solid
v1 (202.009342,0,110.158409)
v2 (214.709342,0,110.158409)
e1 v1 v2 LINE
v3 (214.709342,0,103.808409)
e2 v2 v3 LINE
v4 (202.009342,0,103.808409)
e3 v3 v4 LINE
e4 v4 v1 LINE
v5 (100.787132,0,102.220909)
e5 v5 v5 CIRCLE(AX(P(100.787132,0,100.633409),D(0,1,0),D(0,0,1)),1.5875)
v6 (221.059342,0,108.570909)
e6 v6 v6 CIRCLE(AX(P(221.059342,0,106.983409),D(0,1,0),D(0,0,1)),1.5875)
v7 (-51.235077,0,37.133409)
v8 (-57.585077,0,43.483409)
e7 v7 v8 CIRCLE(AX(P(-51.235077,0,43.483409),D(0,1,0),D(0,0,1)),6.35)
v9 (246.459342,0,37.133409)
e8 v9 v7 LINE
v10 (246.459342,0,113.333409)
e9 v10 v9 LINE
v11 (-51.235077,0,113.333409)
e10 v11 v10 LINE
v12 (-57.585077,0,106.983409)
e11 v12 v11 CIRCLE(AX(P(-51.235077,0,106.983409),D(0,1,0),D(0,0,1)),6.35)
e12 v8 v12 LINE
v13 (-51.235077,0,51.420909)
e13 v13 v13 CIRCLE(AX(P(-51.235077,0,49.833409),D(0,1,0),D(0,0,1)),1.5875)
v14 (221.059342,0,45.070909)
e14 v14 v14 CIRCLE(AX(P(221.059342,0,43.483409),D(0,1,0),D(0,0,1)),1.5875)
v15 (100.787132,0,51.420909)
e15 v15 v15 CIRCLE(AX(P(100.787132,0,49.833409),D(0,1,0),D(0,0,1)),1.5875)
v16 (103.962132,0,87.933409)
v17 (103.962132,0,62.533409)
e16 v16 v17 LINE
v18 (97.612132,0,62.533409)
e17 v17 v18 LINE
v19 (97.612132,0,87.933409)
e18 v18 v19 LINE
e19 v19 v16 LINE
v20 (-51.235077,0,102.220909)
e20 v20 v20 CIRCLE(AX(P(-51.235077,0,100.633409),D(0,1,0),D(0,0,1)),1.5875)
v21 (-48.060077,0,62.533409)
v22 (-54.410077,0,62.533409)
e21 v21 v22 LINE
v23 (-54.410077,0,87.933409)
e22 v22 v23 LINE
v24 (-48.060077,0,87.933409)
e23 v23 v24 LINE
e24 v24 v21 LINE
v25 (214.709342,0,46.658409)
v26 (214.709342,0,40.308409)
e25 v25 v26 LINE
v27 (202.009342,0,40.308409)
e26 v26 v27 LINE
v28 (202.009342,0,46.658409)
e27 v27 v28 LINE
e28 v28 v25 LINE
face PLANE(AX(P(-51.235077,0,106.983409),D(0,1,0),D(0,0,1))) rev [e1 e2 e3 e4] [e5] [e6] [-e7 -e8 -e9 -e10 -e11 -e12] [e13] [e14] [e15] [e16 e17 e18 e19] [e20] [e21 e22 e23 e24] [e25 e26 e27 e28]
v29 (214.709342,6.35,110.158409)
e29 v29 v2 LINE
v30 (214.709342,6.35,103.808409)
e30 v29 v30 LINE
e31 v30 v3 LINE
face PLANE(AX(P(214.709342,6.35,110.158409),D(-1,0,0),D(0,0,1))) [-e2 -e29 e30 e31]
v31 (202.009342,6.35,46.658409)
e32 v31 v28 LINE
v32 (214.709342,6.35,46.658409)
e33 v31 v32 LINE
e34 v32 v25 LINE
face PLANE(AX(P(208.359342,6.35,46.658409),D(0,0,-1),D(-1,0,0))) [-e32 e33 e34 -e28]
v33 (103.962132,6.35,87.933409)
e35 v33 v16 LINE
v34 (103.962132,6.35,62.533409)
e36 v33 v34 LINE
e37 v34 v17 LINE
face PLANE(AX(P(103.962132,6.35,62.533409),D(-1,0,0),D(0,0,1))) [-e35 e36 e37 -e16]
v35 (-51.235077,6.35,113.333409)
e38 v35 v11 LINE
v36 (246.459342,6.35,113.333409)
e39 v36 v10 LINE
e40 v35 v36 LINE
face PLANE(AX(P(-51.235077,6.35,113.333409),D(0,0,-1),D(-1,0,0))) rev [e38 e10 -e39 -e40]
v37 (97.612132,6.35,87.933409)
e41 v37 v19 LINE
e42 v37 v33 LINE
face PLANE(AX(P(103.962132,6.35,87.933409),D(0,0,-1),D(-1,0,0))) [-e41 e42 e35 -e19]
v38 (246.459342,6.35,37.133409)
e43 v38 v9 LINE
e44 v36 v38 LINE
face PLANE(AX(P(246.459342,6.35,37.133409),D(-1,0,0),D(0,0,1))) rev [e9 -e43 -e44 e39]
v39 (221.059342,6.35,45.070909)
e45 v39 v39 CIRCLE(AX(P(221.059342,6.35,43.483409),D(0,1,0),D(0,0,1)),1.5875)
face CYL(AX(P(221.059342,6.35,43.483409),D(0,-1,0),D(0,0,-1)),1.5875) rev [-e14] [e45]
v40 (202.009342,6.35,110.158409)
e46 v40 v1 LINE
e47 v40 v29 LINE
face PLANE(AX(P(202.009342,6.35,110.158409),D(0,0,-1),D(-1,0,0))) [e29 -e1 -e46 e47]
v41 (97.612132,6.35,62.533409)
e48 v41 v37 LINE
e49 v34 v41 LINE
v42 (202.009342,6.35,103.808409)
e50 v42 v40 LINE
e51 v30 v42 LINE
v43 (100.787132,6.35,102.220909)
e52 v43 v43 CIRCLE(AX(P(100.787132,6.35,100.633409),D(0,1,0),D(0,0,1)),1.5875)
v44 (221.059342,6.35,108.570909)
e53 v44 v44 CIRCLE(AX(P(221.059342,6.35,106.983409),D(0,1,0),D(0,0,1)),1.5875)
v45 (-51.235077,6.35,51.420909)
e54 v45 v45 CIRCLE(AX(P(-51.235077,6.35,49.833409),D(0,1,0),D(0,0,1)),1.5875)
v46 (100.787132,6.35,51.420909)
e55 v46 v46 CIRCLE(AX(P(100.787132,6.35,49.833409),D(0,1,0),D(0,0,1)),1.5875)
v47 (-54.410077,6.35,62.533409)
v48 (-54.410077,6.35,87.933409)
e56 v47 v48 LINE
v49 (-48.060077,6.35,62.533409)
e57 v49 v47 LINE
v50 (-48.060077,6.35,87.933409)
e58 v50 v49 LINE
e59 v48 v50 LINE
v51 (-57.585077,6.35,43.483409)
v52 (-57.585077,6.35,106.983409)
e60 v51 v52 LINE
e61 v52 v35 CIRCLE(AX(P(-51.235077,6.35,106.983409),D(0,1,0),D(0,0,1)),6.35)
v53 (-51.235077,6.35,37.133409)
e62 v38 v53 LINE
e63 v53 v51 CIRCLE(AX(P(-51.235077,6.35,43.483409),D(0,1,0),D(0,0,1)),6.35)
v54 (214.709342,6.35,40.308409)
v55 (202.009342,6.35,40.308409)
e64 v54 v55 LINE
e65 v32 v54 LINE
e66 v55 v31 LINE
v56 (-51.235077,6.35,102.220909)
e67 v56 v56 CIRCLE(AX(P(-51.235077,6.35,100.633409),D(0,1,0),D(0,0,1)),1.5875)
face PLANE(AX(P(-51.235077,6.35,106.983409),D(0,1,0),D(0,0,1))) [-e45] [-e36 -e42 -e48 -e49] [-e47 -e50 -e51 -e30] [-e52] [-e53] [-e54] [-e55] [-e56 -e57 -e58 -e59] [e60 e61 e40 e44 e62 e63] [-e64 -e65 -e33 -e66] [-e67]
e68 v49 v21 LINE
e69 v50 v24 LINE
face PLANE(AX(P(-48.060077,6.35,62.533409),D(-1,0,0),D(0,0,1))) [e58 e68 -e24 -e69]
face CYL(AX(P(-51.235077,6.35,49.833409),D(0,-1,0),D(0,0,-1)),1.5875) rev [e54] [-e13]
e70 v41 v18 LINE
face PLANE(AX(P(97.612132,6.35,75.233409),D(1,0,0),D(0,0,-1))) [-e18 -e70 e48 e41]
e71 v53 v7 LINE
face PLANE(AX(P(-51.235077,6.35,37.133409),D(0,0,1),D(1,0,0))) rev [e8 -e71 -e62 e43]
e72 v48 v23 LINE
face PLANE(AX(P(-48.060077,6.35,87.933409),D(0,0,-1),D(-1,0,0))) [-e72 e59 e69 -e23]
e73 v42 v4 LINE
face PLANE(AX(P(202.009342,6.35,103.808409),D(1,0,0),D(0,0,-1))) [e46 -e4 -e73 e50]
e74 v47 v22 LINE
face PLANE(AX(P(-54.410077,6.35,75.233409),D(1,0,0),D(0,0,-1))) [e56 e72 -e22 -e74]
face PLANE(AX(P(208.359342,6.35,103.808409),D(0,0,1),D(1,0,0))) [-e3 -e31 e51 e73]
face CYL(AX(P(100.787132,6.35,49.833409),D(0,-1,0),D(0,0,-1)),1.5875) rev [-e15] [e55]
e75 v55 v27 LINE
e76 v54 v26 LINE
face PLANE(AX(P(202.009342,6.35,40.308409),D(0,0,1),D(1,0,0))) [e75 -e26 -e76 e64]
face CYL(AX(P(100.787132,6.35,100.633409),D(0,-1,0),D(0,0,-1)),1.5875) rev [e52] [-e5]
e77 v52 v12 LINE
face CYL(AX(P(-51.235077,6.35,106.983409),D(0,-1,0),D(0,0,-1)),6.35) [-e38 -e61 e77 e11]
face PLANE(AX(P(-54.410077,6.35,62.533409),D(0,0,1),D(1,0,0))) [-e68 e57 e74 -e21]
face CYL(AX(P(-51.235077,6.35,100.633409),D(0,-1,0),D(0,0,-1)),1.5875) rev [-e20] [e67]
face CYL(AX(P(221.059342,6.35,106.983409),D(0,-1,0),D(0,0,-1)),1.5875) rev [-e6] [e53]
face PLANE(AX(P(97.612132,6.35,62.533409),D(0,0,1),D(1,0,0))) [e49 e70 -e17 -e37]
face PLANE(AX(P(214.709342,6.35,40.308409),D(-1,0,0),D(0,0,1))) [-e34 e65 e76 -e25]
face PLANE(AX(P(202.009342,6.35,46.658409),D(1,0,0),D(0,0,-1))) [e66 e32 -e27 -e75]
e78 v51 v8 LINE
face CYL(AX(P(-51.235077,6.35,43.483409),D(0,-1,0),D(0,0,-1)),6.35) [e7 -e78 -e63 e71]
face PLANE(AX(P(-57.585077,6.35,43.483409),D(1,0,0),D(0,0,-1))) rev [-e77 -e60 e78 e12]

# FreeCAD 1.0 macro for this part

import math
import FreeCAD as App
import Part
import Sketcher
Q = App.Units.Quantity


def add_polygon(sketch, points):
    """Adds a closed chain of lines whose ends are joined by coincident constraints."""
    first, n = sketch.GeometryCount, len(points)
    for a, b in zip(points, points[1:] + points[:1]):
        sketch.addGeometry(Part.LineSegment(App.Vector(*a, 0), App.Vector(*b, 0)), False)
    for i in range(n):
        sketch.addConstraint(Sketcher.Constraint("Coincident", first + i, 2, first + (i + 1) % n, 1))

doc = App.newDocument("Part")
body = doc.addObject("PartDesign::Body", "Body")

sketch1 = doc.addObject("Sketcher::SketchObject", "Sketch")
body.addObject(sketch1)
sketch1.AttachmentSupport = (doc.XZ_Plane, [""])
sketch1.MapMode = "FlatFace"
sketch1.addGeometry(Part.LineSegment(App.Vector(-51.2, 113.3, 0), App.Vector(246.5, 113.3, 0)), False)
sketch1.addGeometry(Part.LineSegment(App.Vector(246.5, 113.3, 0), App.Vector(246.5, 37.1, 0)), False)
sketch1.addGeometry(Part.LineSegment(App.Vector(246.5, 37.1, 0), App.Vector(-51.2, 37.1, 0)), False)
sketch1.addGeometry(Part.ArcOfCircle(Part.Circle(App.Vector(-51.2, 43.5, 0), App.Vector(0, 0, 1), 6.3), math.radians(180), math.radians(270)), False)
sketch1.addGeometry(Part.LineSegment(App.Vector(-57.6, 43.5, 0), App.Vector(-57.6, 107, 0)), False)
sketch1.addGeometry(Part.ArcOfCircle(Part.Circle(App.Vector(-51.2, 107, 0), App.Vector(0, 0, 1), 6.3), math.radians(90), math.radians(180)), False)
sketch1.addGeometry(Part.Circle(App.Vector(-51.2, 100.6, 0), App.Vector(0, 0, 1), 1.6), False)
sketch1.addGeometry(Part.Circle(App.Vector(100.8, 100.6, 0), App.Vector(0, 0, 1), 1.6), False)
add_polygon(sketch1, [(202, 103.8), (214.7, 103.8), (214.7, 110.2), (202, 110.2)])
sketch1.addGeometry(Part.Circle(App.Vector(221.1, 107, 0), App.Vector(0, 0, 1), 1.6), False)
add_polygon(sketch1, [(-54.4, 87.9), (-54.4, 62.5), (-48.1, 62.5), (-48.1, 87.9)])
sketch1.addGeometry(Part.Circle(App.Vector(-51.2, 49.8, 0), App.Vector(0, 0, 1), 1.6), False)
add_polygon(sketch1, [(97.6, 87.9), (97.6, 62.5), (104, 62.5), (104, 87.9)])
sketch1.addGeometry(Part.Circle(App.Vector(100.8, 49.8, 0), App.Vector(0, 0, 1), 1.6), False)
add_polygon(sketch1, [(214.7, 46.7), (202, 46.7), (202, 40.3), (214.7, 40.3)])
sketch1.addGeometry(Part.Circle(App.Vector(221.1, 43.5, 0), App.Vector(0, 0, 1), 1.6), False)
sketch1.addConstraint(Sketcher.Constraint("Coincident", 0, 2, 1, 1))
sketch1.addConstraint(Sketcher.Constraint("Coincident", 1, 2, 2, 1))
sketch1.addConstraint(Sketcher.Constraint("Tangent", 2, 2, 3, 2))
sketch1.addConstraint(Sketcher.Constraint("Tangent", 3, 1, 4, 1))
sketch1.addConstraint(Sketcher.Constraint("Tangent", 4, 2, 5, 2))
sketch1.addConstraint(Sketcher.Constraint("Tangent", 5, 1, 0, 1))
sketch1.addConstraint(Sketcher.Constraint("Horizontal", 0))
sketch1.addConstraint(Sketcher.Constraint("Vertical", 1))
sketch1.addConstraint(Sketcher.Constraint("Horizontal", 2))
sketch1.addConstraint(Sketcher.Constraint("Vertical", 4))
sketch1.addConstraint(Sketcher.Constraint("Horizontal", 8))
sketch1.addConstraint(Sketcher.Constraint("Vertical", 9))
sketch1.addConstraint(Sketcher.Constraint("Horizontal", 10))
sketch1.addConstraint(Sketcher.Constraint("Vertical", 11))
sketch1.addConstraint(Sketcher.Constraint("Vertical", 13))
sketch1.addConstraint(Sketcher.Constraint("Horizontal", 14))
sketch1.addConstraint(Sketcher.Constraint("Vertical", 15))
sketch1.addConstraint(Sketcher.Constraint("Horizontal", 16))
sketch1.addConstraint(Sketcher.Constraint("Vertical", 18))
sketch1.addConstraint(Sketcher.Constraint("Horizontal", 19))
sketch1.addConstraint(Sketcher.Constraint("Vertical", 20))
sketch1.addConstraint(Sketcher.Constraint("Horizontal", 21))
sketch1.addConstraint(Sketcher.Constraint("Horizontal", 23))
sketch1.addConstraint(Sketcher.Constraint("Vertical", 24))
sketch1.addConstraint(Sketcher.Constraint("Horizontal", 25))
sketch1.addConstraint(Sketcher.Constraint("Vertical", 26))
sketch1.addConstraint(Sketcher.Constraint("Equal", 3, 5))
sketch1.addConstraint(Sketcher.Constraint("Equal", 6, 7))
sketch1.addConstraint(Sketcher.Constraint("Equal", 7, 12))
sketch1.addConstraint(Sketcher.Constraint("Equal", 12, 17))
sketch1.addConstraint(Sketcher.Constraint("Equal", 17, 22))
sketch1.addConstraint(Sketcher.Constraint("Equal", 22, 27))
sketch1.addConstraint(Sketcher.Constraint("Horizontal", 6, 3, 7, 3))
sketch1.addConstraint(Sketcher.Constraint("Horizontal", 5, 3, 12, 3))
sketch1.addConstraint(Sketcher.Constraint("Horizontal", 17, 3, 22, 3))
sketch1.addConstraint(Sketcher.Constraint("Horizontal", 3, 3, 27, 3))
sketch1.addConstraint(Sketcher.Constraint("Horizontal", 14, 2, 18, 2))
sketch1.addConstraint(Sketcher.Constraint("Horizontal", 16, 2, 20, 2))
sketch1.addConstraint(Sketcher.Constraint("Vertical", 5, 3, 6, 3))
sketch1.addConstraint(Sketcher.Constraint("Vertical", 6, 3, 17, 3))
sketch1.addConstraint(Sketcher.Constraint("Vertical", 7, 3, 22, 3))
sketch1.addConstraint(Sketcher.Constraint("Vertical", 12, 3, 27, 3))
sketch1.addConstraint(Sketcher.Constraint("Vertical", 11, 2, 23, 2))
sketch1.addConstraint(Sketcher.Constraint("Vertical", 9, 2, 25, 2))
sketch1.addConstraint(Sketcher.Constraint("Equal", 16, 19))
sketch1.addConstraint(Sketcher.Constraint("Equal", 21, 9))
sketch1.addConstraint(Sketcher.Constraint("Equal", 11, 24))
sketch1.addConstraint(Sketcher.Constraint("DistanceY", 1, 2, 1, 1, Q("3 in")))
sketch1.addConstraint(Sketcher.Constraint("DistanceY", 13, 2, 13, 1, Q("1 in")))
sketch1.addConstraint(Sketcher.Constraint("Radius", 3, Q("0.25 in")))
sketch1.addConstraint(Sketcher.Constraint("Diameter", 6, Q("0.125 in")))
sketch1.addConstraint(Sketcher.Constraint("DistanceX", 8, 1, 8, 2, Q("0.5 in")))
sketch1.addConstraint(Sketcher.Constraint("DistanceY", 17, 3, 6, 3, Q("2 in")))
sketch1.addConstraint(Sketcher.Constraint("DistanceX", 12, 3, 0, 2, Q("1 in")))
sketch1.addConstraint(Sketcher.Constraint("DistanceY", 2, 2, 13, 2, Q("1 in")))
sketch1.addConstraint(Sketcher.Constraint("DistanceX", 14, 1, 14, 2, Q("0.25 in")))
sketch1.addConstraint(Sketcher.Constraint("DistanceY", 7, 3, 0, 2, Q("0.5 in")))
sketch1.addConstraint(Sketcher.Constraint("DistanceY", 24, 2, 11, 2, Q("2.5 in")))
sketch1.addConstraint(Sketcher.Constraint("DistanceX", 8, 2, 12, 3, Q("0.25 in")))
sketch1.addConstraint(Sketcher.Constraint("DistanceY", 8, 2, 12, 3, Q("0.125 in")))
sketch1.addConstraint(Sketcher.Constraint("DistanceX", 13, 2, 17, 3, Q("0.125 in")))
sketch1.addConstraint(Sketcher.Constraint("DistanceX", 18, 2, 22, 3, Q("0.125 in")))
sketch1.addConstraint(Sketcher.Constraint("DistanceX", 0, 1, 0, 2, Q("297.694418 mm")))
sketch1.addConstraint(Sketcher.Constraint("DistanceY", -1, 1, 3, 3, Q("43.483409 mm")))
sketch1.addConstraint(Sketcher.Constraint("DistanceX", -1, 1, 12, 3, Q("221.059342 mm")))
sketch1.addConstraint(Sketcher.Constraint("DistanceX", 6, 3, 7, 3, Q("152.022209 mm")))
pad1 = doc.addObject("PartDesign::Pad", "Pad")
body.addObject(pad1)
pad1.Profile = sketch1
pad1.Length = Q("0.25 in")
pad1.Reversed = True

doc.recompute()
